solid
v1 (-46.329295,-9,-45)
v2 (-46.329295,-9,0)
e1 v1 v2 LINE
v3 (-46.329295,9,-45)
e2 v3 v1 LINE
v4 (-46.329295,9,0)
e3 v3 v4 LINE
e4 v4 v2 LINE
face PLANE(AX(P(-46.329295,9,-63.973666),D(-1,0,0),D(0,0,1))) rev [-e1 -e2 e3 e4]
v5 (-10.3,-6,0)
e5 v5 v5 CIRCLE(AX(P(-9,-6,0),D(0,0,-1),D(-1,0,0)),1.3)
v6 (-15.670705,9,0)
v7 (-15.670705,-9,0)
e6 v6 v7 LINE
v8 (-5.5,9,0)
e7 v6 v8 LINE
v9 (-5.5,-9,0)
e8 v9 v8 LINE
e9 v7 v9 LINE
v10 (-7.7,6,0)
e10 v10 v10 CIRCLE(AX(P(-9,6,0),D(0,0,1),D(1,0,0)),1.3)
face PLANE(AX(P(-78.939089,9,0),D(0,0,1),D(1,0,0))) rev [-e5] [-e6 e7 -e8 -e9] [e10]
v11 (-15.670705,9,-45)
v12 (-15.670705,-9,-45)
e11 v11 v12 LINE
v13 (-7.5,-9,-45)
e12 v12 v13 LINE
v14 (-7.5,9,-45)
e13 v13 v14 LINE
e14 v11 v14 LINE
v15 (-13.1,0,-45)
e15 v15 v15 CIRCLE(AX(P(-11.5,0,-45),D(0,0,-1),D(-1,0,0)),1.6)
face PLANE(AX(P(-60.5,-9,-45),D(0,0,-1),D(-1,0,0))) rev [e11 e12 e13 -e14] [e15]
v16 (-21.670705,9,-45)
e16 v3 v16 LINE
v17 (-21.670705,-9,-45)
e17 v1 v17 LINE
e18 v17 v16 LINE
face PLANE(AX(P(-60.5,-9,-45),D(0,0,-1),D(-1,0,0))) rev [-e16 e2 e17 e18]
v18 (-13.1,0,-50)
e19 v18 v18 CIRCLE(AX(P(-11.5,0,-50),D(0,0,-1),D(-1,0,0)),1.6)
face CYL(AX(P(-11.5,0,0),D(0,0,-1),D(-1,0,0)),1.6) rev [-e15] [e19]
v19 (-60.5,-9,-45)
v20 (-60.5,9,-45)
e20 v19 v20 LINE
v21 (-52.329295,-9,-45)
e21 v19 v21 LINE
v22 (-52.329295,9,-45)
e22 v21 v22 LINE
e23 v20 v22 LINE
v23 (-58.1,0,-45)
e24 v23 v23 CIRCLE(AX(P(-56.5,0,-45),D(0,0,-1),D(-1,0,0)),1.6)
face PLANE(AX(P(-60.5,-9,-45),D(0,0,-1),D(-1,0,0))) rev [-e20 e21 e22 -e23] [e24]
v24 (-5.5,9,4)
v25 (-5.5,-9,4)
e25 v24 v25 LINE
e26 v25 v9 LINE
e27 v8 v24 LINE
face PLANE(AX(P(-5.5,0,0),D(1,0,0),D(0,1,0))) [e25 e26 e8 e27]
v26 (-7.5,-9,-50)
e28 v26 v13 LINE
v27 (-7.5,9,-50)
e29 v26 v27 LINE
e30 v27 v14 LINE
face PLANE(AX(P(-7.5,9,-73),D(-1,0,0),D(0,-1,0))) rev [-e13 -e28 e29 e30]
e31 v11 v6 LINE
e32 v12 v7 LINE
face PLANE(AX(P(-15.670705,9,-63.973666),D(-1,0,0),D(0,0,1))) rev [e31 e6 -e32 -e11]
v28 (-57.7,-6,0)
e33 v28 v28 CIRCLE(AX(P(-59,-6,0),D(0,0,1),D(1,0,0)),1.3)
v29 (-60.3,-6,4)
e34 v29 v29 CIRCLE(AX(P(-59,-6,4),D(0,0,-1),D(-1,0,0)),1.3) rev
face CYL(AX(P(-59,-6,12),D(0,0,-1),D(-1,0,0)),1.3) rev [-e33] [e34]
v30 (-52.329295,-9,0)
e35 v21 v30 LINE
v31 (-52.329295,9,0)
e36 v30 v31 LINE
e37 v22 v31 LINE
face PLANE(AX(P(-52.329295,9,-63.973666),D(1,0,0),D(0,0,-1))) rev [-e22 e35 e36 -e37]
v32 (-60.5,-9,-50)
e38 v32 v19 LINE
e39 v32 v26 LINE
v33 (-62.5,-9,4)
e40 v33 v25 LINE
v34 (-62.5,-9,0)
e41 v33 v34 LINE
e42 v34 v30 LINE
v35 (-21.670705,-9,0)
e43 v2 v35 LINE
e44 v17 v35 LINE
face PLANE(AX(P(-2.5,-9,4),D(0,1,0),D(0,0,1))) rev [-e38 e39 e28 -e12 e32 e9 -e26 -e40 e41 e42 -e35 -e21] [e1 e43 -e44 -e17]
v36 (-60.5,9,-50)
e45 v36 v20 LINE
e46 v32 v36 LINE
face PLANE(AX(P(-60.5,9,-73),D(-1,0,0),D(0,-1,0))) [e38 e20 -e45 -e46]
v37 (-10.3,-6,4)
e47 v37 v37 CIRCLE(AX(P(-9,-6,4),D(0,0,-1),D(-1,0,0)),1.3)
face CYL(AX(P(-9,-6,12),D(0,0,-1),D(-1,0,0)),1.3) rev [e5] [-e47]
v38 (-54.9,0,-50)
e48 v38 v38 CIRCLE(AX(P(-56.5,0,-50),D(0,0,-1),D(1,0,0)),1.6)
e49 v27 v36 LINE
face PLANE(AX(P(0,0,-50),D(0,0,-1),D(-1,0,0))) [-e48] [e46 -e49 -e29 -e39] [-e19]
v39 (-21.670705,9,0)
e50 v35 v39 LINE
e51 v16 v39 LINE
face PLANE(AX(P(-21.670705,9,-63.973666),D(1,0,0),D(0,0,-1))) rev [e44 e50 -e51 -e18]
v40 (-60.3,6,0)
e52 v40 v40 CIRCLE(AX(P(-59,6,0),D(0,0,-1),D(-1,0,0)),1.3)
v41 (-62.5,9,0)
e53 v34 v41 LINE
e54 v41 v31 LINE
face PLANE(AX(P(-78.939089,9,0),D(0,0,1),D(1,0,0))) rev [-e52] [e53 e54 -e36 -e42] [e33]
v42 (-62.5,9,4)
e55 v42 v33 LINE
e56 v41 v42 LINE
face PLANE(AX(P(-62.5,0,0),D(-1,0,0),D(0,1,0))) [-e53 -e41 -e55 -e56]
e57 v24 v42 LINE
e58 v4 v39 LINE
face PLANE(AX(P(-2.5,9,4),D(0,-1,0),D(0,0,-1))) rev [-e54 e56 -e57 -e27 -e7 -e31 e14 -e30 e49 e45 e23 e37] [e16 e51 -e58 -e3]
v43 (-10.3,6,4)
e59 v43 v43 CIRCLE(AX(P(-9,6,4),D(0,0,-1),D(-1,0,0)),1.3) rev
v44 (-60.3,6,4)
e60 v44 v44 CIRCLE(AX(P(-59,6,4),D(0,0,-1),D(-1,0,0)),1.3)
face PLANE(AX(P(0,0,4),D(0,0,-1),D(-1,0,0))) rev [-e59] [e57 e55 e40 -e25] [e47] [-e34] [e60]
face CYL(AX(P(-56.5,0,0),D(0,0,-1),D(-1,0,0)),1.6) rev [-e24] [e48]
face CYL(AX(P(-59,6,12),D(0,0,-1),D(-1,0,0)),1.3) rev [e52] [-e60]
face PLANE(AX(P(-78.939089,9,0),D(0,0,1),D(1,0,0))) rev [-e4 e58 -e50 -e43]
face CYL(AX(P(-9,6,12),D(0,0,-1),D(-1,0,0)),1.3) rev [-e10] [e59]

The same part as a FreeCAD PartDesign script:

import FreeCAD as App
import Part
import Sketcher
Q = App.Units.Quantity


def add_polygon(sketch, points):
    """Adds a closed chain of lines whose ends are joined by coincident constraints."""
    first, n = sketch.GeometryCount, len(points)
    for a, b in zip(points, points[1:] + points[:1]):
        sketch.addGeometry(Part.LineSegment(App.Vector(*a, 0), App.Vector(*b, 0)), False)
    for i in range(n):
        sketch.addConstraint(Sketcher.Constraint("Coincident", first + i, 2, first + (i + 1) % n, 1))

doc = App.newDocument("Part")
body = doc.addObject("PartDesign::Body", "Body")

# Sketch on XY plane
sketch1 = body.newObject("Sketcher::SketchObject", "Sketch")
sketch1.AttachmentSupport = (doc.getObject("XY_Plane"), [""])
sketch1.MapMode = "FlatFace"
add_polygon(sketch1, [(-2.5, 9), (-2.5, -9), (2.5, -9), (2.5, 9)])  # lines 0-3
sketch1.addGeometry(Part.Circle(App.Vector(0, -6, 0), App.Vector(0, 0, 1), 1.3), False)  # 4
sketch1.addGeometry(Part.Circle(App.Vector(0, 6, 0), App.Vector(0, 0, 1), 1.3), False)  # 5
sketch1.addConstraint(Sketcher.Constraint("Vertical", 0))
sketch1.addConstraint(Sketcher.Constraint("Horizontal", 1))
sketch1.addConstraint(Sketcher.Constraint("Vertical", 2))
sketch1.addConstraint(Sketcher.Constraint("Horizontal", 3))
sketch1.addConstraint(Sketcher.Constraint("Equal", 4, 5))
sketch1.addConstraint(Sketcher.Constraint("Symmetric", 4, 3, 5, 3, -1, 1))
sketch1.addConstraint(Sketcher.Constraint("Symmetric", 0, 2, 2, 2, -1, 1))
sketch1.addConstraint(Sketcher.Constraint("PointOnObject", 4, 3, -2))
sketch1.addConstraint(Sketcher.Constraint("Diameter", 4, Q("2.6 mm")))
sketch1.addConstraint(Sketcher.Constraint("DistanceX", 1, 1, 1, 2, Q("5 mm")))
sketch1.addConstraint(Sketcher.Constraint("DistanceY", 0, 2, 0, 1, Q("18 mm")))
sketch1.addConstraint(Sketcher.Constraint("DistanceY", 4, 3, -1, 1, Q("6 mm")))
pad1 = body.newObject("PartDesign::Pad", "Pad")
pad1.Profile = sketch1
pad1.Length = 4

# Sketch on XY plane
sketch2 = body.newObject("Sketcher::SketchObject", "Sketch001")
sketch2.AttachmentSupport = (doc.getObject("XY_Plane"), [""])
sketch2.MapMode = "FlatFace"
sketch2.AttachmentOffset = App.Placement(App.Vector(0, 0, 4), App.Rotation())
add_polygon(sketch2, [(-8, 9), (-8, -9), (-2, -9), (-2, 9)])  # lines 0-3
sketch2.addConstraint(Sketcher.Constraint("Vertical", 0))
sketch2.addConstraint(Sketcher.Constraint("Horizontal", 1))
sketch2.addConstraint(Sketcher.Constraint("Vertical", 2))
sketch2.addConstraint(Sketcher.Constraint("Horizontal", 3))
sketch2.addConstraint(Sketcher.Constraint("DistanceX", 1, 1, 1, 2, Q("5 mm")))
sketch2.addConstraint(Sketcher.Constraint("DistanceY", 0, 2, 0, 1, Q("18 mm")))
sketch2.addConstraint(Sketcher.Constraint("DistanceY", 0, 2, -1, 1, Q("9 mm")))
sketch2.addConstraint(Sketcher.Constraint("DistanceX", 0, 2, -1, 1, Q("7.5 mm")))
pad2 = body.newObject("PartDesign::Pad", "Pad001")
pad2.Profile = sketch2
pad2.Length = 54
pad2.Reversed = True

# Sketch on YZ plane
sketch3 = body.newObject("Sketcher::SketchObject", "Sketch002")
sketch3.AttachmentSupport = (doc.getObject("YZ_Plane"), [""])
sketch3.MapMode = "FlatFace"
sketch3.AttachmentOffset = App.Placement(App.Vector(0, 0, -7.5), App.Rotation())
add_polygon(sketch3, [(9, -50), (-9, -50), (-9, -45), (9, -45)])  # lines 0-3
sketch3.addConstraint(Sketcher.Constraint("Horizontal", 0))
sketch3.addConstraint(Sketcher.Constraint("Vertical", 1))
sketch3.addConstraint(Sketcher.Constraint("Horizontal", 2))
sketch3.addConstraint(Sketcher.Constraint("Vertical", 3))
sketch3.addConstraint(Sketcher.Constraint("DistanceX", 0, 2, 0, 1, Q("18 mm")))
sketch3.addConstraint(Sketcher.Constraint("DistanceY", 1, 1, 1, 2, Q("5 mm")))
sketch3.addConstraint(Sketcher.Constraint("DistanceX", 0, 2, -1, 1, Q("9 mm")))
sketch3.addConstraint(Sketcher.Constraint("DistanceY", 0, 2, -1, 1, Q("50 mm")))
pad3 = body.newObject("PartDesign::Pad", "Pad002")
pad3.Profile = sketch3
pad3.Length = 53
pad3.Reversed = True
doc.recompute()

datumplane = body.newObject("PartDesign::Plane", "DatumPlane")
datumplane.AttachmentSupport = (doc.getObject("YZ_Plane"), [""])
datumplane.MapMode = "FlatFace"
datumplane.AttachmentOffset = App.Placement(App.Vector(0, 0, -34), App.Rotation())
mirrored = body.newObject("PartDesign::Mirrored", "Mirrored")
mirrored.Originals = [pad2]
mirrored.MirrorPlane = (datumplane, [""])
body.Tip = mirrored
doc.recompute()

datumplane2 = body.newObject("PartDesign::Plane", "DatumPlane001")
datumplane2.AttachmentSupport = (doc.getObject("YZ_Plane"), [""])
datumplane2.MapMode = "FlatFace"
datumplane2.AttachmentOffset = App.Placement(App.Vector(0, 0, -34), App.Rotation())
mirrored2 = body.newObject("PartDesign::Mirrored", "Mirrored001")
mirrored2.Originals = [pad1]
mirrored2.MirrorPlane = (datumplane2, [""])
body.Tip = mirrored2

# Sketch on XY plane
sketch4 = body.newObject("Sketcher::SketchObject", "Sketch003")
sketch4.AttachmentSupport = (doc.getObject("XY_Plane"), [""])
sketch4.MapMode = "FlatFace"
sketch4.AttachmentOffset = App.Placement(App.Vector(0, 0, -50), App.Rotation())
sketch4.addGeometry(Part.Circle(App.Vector(-11.5, 0, 0), App.Vector(0, 0, 1), 1.6), False)
sketch4.addGeometry(Part.Circle(App.Vector(-56.5, 0, 0), App.Vector(0, 0, 1), 1.6), False)
sketch4.addConstraint(Sketcher.Constraint("Equal", 0, 1))
sketch4.addConstraint(Sketcher.Constraint("PointOnObject", 0, 3, -1))
sketch4.addConstraint(Sketcher.Constraint("PointOnObject", 1, 3, -1))
sketch4.addConstraint(Sketcher.Constraint("Diameter", 0, Q("3.2 mm")))
sketch4.addConstraint(Sketcher.Constraint("DistanceX", 1, 3, 0, 3, Q("45 mm")))
sketch4.addConstraint(Sketcher.Constraint("DistanceX", 0, 3, -1, 1, Q("11.5 mm")))
pocket1 = body.newObject("PartDesign::Pocket", "Pocket")
pocket1.Profile = sketch4
pocket1.Length = 50
pocket1.Reversed = True

# Sketch on YZ plane
sketch5 = body.newObject("Sketcher::SketchObject", "Sketch004")
sketch5.AttachmentSupport = (doc.getObject("YZ_Plane"), [""])
sketch5.MapMode = "FlatFace"
sketch5.AttachmentOffset = App.Placement(App.Vector(0, 0, -7.5), App.Rotation())
add_polygon(sketch5, [(9, 0), (-9, 0), (-9, 4), (9, 4)])  # lines 0-3
sketch5.addConstraint(Sketcher.Constraint("Horizontal", 0))
sketch5.addConstraint(Sketcher.Constraint("Vertical", 1))
sketch5.addConstraint(Sketcher.Constraint("Horizontal", 2))
sketch5.addConstraint(Sketcher.Constraint("Vertical", 3))
sketch5.addConstraint(Sketcher.Constraint("Symmetric", 0, 2, 3, 2, -1, 1))
sketch5.addConstraint(Sketcher.Constraint("DistanceX", 0, 2, 0, 1, Q("18 mm")))
sketch5.addConstraint(Sketcher.Constraint("DistanceY", 1, 1, 1, 2, Q("4 mm")))
pad4 = body.newObject("PartDesign::Pad", "Pad003")
pad4.Profile = sketch5
pad4.Length = 53
pad4.Reversed = True

# Sketch on XY plane
sketch6 = body.newObject("Sketcher::SketchObject", "Sketch005")
sketch6.AttachmentSupport = (doc.getObject("XY_Plane"), [""])
sketch6.MapMode = "FlatFace"
sketch6.addGeometry(Part.Circle(App.Vector(-59, 6, 0), App.Vector(0, 0, 1), 1.3), False)
sketch6.addGeometry(Part.Circle(App.Vector(-59, -6, 0), App.Vector(0, 0, 1), 1.3), False)
sketch6.addGeometry(Part.Circle(App.Vector(-9, -6, 0), App.Vector(0, 0, 1), 1.3), False)
sketch6.addGeometry(Part.Circle(App.Vector(-9, 6, 0), App.Vector(0, 0, 1), 1.3), False)
sketch6.addConstraint(Sketcher.Constraint("Equal", 0, 1))
sketch6.addConstraint(Sketcher.Constraint("Equal", 1, 2))
sketch6.addConstraint(Sketcher.Constraint("Equal", 2, 3))
sketch6.addConstraint(Sketcher.Constraint("Symmetric", 0, 3, 1, 3, -1))
sketch6.addConstraint(Sketcher.Constraint("Symmetric", 2, 3, 3, 3, -1))
sketch6.addConstraint(Sketcher.Constraint("Horizontal", 1, 3, 2, 3))
sketch6.addConstraint(Sketcher.Constraint("Diameter", 0, Q("2.6 mm")))
sketch6.addConstraint(Sketcher.Constraint("DistanceX", 0, 3, -1, 1, Q("59 mm")))
sketch6.addConstraint(Sketcher.Constraint("DistanceY", -1, 1, 0, 3, Q("6 mm")))
sketch6.addConstraint(Sketcher.Constraint("DistanceX", 2, 3, -1, 1, Q("9 mm")))
pocket2 = body.newObject("PartDesign::Pocket", "Pocket001")
pocket2.Profile = sketch6
pocket2.Length = 12
pocket2.Reversed = True

# Sketch on YZ plane
sketch7 = body.newObject("Sketcher::SketchObject", "Sketch006")
sketch7.AttachmentSupport = (doc.getObject("YZ_Plane"), [""])
sketch7.MapMode = "FlatFace"
sketch7.AttachmentOffset = App.Placement(App.Vector(0, 0, 2.5), App.Rotation())
add_polygon(sketch7, [(9, 4), (-9, 4), (-9, 0), (9, 0)])  # lines 0-3
sketch7.addConstraint(Sketcher.Constraint("Horizontal", 0))
sketch7.addConstraint(Sketcher.Constraint("Vertical", 1))
sketch7.addConstraint(Sketcher.Constraint("Horizontal", 2))
sketch7.addConstraint(Sketcher.Constraint("Vertical", 3))
sketch7.addConstraint(Sketcher.Constraint("Symmetric", 1, 2, 2, 2, -1, 1))
sketch7.addConstraint(Sketcher.Constraint("DistanceX", 0, 2, 0, 1, Q("18 mm")))
sketch7.addConstraint(Sketcher.Constraint("DistanceY", 1, 2, 1, 1, Q("4 mm")))
pocket3 = body.newObject("PartDesign::Pocket", "Pocket002")
pocket3.Profile = sketch7
pocket3.Length = 5

# Sketch on YZ plane
sketch8 = body.newObject("Sketcher::SketchObject", "Sketch007")
sketch8.AttachmentSupport = (doc.getObject("YZ_Plane"), [""])
sketch8.MapMode = "FlatFace"
sketch8.AttachmentOffset = App.Placement(App.Vector(0, 0, -70.5), App.Rotation())
add_polygon(sketch8, [(9, 0), (-9, 0), (-9, 4), (9, 4)])  # lines 0-3
sketch8.addConstraint(Sketcher.Constraint("Horizontal", 0))
sketch8.addConstraint(Sketcher.Constraint("Vertical", 1))
sketch8.addConstraint(Sketcher.Constraint("Horizontal", 2))
sketch8.addConstraint(Sketcher.Constraint("Vertical", 3))
sketch8.addConstraint(Sketcher.Constraint("Symmetric", 0, 2, 3, 2, -1, 1))
sketch8.addConstraint(Sketcher.Constraint("DistanceX", 0, 2, 0, 1, Q("18 mm")))
sketch8.addConstraint(Sketcher.Constraint("DistanceY", 1, 1, 1, 2, Q("4 mm")))
pocket4 = body.newObject("PartDesign::Pocket", "Pocket003")
pocket4.Profile = sketch8
pocket4.Length = 5
pocket4.Reversed = True

# Sketch on XY plane
sketch9 = body.newObject("Sketcher::SketchObject", "Sketch008")
sketch9.AttachmentSupport = (doc.getObject("XY_Plane"), [""])
sketch9.MapMode = "FlatFace"
add_polygon(sketch9, [(-16, 9), (-16, -9), (-22, -9), (-22, 9)])  # lines 0-3
add_polygon(sketch9, [(-46, 9), (-46, -9), (-52, -9), (-52, 9)])  # lines 4-7
sketch9.addConstraint(Sketcher.Constraint("Vertical", 0))
sketch9.addConstraint(Sketcher.Constraint("Horizontal", 1))
sketch9.addConstraint(Sketcher.Constraint("Vertical", 2))
sketch9.addConstraint(Sketcher.Constraint("Horizontal", 3))
sketch9.addConstraint(Sketcher.Constraint("Vertical", 4))
sketch9.addConstraint(Sketcher.Constraint("Horizontal", 5))
sketch9.addConstraint(Sketcher.Constraint("Vertical", 6))
sketch9.addConstraint(Sketcher.Constraint("Horizontal", 7))
sketch9.addConstraint(Sketcher.Constraint("Horizontal", 1, 2, 4, 2))
sketch9.addConstraint(Sketcher.Constraint("Horizontal", 3, 2, 6, 2))
sketch9.addConstraint(Sketcher.Constraint("Equal", 3, 5))
sketch9.addConstraint(Sketcher.Constraint("DistanceX", 1, 2, 1, 1, Q("6 mm")))
sketch9.addConstraint(Sketcher.Constraint("DistanceY", 0, 2, 0, 1, Q("18 mm")))
sketch9.addConstraint(Sketcher.Constraint("DistanceY", 0, 2, -1, 1, Q("9 mm")))
sketch9.addConstraint(Sketcher.Constraint("DistanceX", 4, 2, 1, 2, Q("24.65859 mm")))
sketch9.addConstraint(Sketcher.Constraint("DistanceX", 0, 2, -1, 1, Q("15.670705 mm")))
pad5 = body.newObject("PartDesign::Pad", "Pad004")
pad5.Profile = sketch9
pad5.Length = 45
pad5.Reversed = True

# Sketch on XY plane
sketch10 = body.newObject("Sketcher::SketchObject", "Sketch009")
sketch10.AttachmentSupport = (doc.getObject("XY_Plane"), [""])
sketch10.MapMode = "FlatFace"
sketch10.AttachmentOffset = App.Placement(App.Vector(0, 0, 4), App.Rotation())
add_polygon(sketch10, [(-8, 9), (-8, -9), (-2, -9), (-2, 9)])  # lines 0-3
sketch10.addConstraint(Sketcher.Constraint("Vertical", 0))
sketch10.addConstraint(Sketcher.Constraint("Horizontal", 1))
sketch10.addConstraint(Sketcher.Constraint("Vertical", 2))
sketch10.addConstraint(Sketcher.Constraint("Horizontal", 3))
sketch10.addConstraint(Sketcher.Constraint("DistanceX", 1, 1, 1, 2, Q("5 mm")))
sketch10.addConstraint(Sketcher.Constraint("DistanceY", 0, 2, 0, 1, Q("18 mm")))
sketch10.addConstraint(Sketcher.Constraint("DistanceY", 0, 2, -1, 1, Q("9 mm")))
sketch10.addConstraint(Sketcher.Constraint("DistanceX", 0, 2, -1, 1, Q("7.5 mm")))
pocket5 = body.newObject("PartDesign::Pocket", "Pocket004")
pocket5.Profile = sketch10
pocket5.Length = 77

# Sketch on YZ plane
sketch11 = body.newObject("Sketcher::SketchObject", "Sketch010")
sketch11.AttachmentSupport = (doc.getObject("YZ_Plane"), [""])
sketch11.MapMode = "FlatFace"
sketch11.AttachmentOffset = App.Placement(App.Vector(0, 0, -7.5), App.Rotation())
add_polygon(sketch11, [(9, 4), (-9, 4), (-9, 0), (9, 0)])  # lines 0-3
sketch11.addConstraint(Sketcher.Constraint("Horizontal", 0))
sketch11.addConstraint(Sketcher.Constraint("Vertical", 1))
sketch11.addConstraint(Sketcher.Constraint("Horizontal", 2))
sketch11.addConstraint(Sketcher.Constraint("Vertical", 3))
sketch11.addConstraint(Sketcher.Constraint("Symmetric", 1, 2, 2, 2, -1, 1))
sketch11.addConstraint(Sketcher.Constraint("DistanceX", 0, 2, 0, 1, Q("18 mm")))
sketch11.addConstraint(Sketcher.Constraint("DistanceY", 1, 2, 1, 1, Q("4 mm")))
pad6 = body.newObject("PartDesign::Pad", "Pad005")
pad6.Profile = sketch11
pad6.Length = 2
doc.recompute()

datumplane3 = body.newObject("PartDesign::Plane", "DatumPlane002")
datumplane3.AttachmentSupport = (doc.getObject("YZ_Plane"), [""])
datumplane3.MapMode = "FlatFace"
datumplane3.AttachmentOffset = App.Placement(App.Vector(0, 0, -34), App.Rotation())
mirrored3 = body.newObject("PartDesign::Mirrored", "Mirrored002")
mirrored3.Originals = [pad5, pocket5, pad6]
mirrored3.MirrorPlane = (datumplane3, [""])
body.Tip = mirrored3

doc.recompute()
